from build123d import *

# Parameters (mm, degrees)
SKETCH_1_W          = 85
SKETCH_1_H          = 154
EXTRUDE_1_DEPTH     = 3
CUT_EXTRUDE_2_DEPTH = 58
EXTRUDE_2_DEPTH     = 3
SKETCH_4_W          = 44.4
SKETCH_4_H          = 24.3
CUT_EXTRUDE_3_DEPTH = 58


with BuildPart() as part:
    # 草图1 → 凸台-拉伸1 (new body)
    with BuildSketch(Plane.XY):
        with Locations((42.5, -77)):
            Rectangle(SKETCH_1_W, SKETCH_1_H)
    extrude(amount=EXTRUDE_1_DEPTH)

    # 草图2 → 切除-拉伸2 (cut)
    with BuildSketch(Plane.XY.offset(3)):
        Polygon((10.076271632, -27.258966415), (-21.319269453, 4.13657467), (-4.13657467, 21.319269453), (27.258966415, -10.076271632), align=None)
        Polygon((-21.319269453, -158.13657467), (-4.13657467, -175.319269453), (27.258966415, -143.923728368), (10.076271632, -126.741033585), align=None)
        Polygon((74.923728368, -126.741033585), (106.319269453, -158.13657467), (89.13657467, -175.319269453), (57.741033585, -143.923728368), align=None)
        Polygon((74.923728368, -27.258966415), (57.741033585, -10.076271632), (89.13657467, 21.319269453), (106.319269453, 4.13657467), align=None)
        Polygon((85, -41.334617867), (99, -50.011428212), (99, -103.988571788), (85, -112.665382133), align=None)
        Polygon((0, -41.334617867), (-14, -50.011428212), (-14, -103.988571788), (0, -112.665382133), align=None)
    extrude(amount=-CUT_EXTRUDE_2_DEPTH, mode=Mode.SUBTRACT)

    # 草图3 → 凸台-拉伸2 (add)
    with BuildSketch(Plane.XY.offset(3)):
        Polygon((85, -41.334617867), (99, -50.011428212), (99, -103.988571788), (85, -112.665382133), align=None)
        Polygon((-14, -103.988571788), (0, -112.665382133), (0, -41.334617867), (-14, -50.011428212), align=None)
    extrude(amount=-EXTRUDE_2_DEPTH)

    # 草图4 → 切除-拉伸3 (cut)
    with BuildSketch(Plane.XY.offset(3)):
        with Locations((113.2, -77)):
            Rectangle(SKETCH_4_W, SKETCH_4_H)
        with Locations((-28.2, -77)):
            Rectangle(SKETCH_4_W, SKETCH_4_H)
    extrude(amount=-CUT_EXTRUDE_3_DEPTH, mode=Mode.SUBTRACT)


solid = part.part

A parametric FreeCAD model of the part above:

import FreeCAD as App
import Part
import Sketcher
Q = App.Units.Quantity

doc = App.newDocument("Part")
params = doc.addObject("Spreadsheet::Sheet", "Params")
for row, (alias, value) in enumerate([
    ("sketch1_width", "85 mm"),
    ("sketch1_height", "154 mm"),
    ("pad1_length", "3 mm"),
    ("sketch2_length", "44.4 mm"),
    ("sketch2_length2", "24.3 mm"),
    ("pocket1_length", "58 mm"),
    ("pad2_length", "3 mm"),
    ("sketch4_width", "44.4 mm"),
    ("sketch4_height", "24.3 mm"),
    ("pocket2_length", "58 mm"),
], start=1):
    params.set(f"A{row}", alias)
    params.set(f"B{row}", "=" + value)
    params.setAlias(f"B{row}", alias)

body = doc.addObject("PartDesign::Body", "Body")

# Sketch on XY plane
sketch1 = doc.addObject("Sketcher::SketchObject", "Sketch")
body.addObject(sketch1)
sketch1.AttachmentSupport = (doc.XY_Plane, [""])
sketch1.MapMode = "FlatFace"
sketch1.addGeometry([
    Part.LineSegment(App.Vector(0, 0, 0), App.Vector(0, -154, 0)),
    Part.LineSegment(App.Vector(0, -154, 0), App.Vector(85, -154, 0)),
    Part.LineSegment(App.Vector(85, -154, 0), App.Vector(85, 0, 0)),
    Part.LineSegment(App.Vector(85, 0, 0), App.Vector(0, 0, 0)),
], False)
sketch1.addConstraint([
    Sketcher.Constraint("Coincident", 0, 2, 1, 1),
    Sketcher.Constraint("Coincident", 1, 2, 2, 1),
    Sketcher.Constraint("Coincident", 2, 2, 3, 1),
    Sketcher.Constraint("Coincident", 3, 2, 0, 1),
    Sketcher.Constraint("Vertical", 0),
    Sketcher.Constraint("Horizontal", 1),
    Sketcher.Constraint("Vertical", 2),
    Sketcher.Constraint("Horizontal", 3),
    Sketcher.Constraint("Coincident", 3, 2, -1, 1),
    Sketcher.Constraint("DistanceX", 1, 1, 1, 2, Q("85 mm")),
    Sketcher.Constraint("DistanceY", 0, 2, 0, 1, Q("154 mm")),
])
sketch1.setExpression("Constraints[9]", "Params.sketch1_width")
sketch1.setExpression("Constraints[10]", "Params.sketch1_height")
pad1 = doc.addObject("PartDesign::Pad", "Pad")
body.addObject(pad1)
pad1.Profile = sketch1
pad1.setExpression("Length", "Params.pad1_length")

# Sketch on XY plane
sketch2 = doc.addObject("Sketcher::SketchObject", "Sketch001")
body.addObject(sketch2)
sketch2.AttachmentSupport = (doc.XY_Plane, [""])
sketch2.MapMode = "FlatFace"
sketch2.AttachmentOffset = App.Placement(App.Vector(0, 0, 3), App.Rotation())
sketch2.addGeometry([
    Part.LineSegment(App.Vector(-21.319269, 4.136575, 0), App.Vector(10.076272, -27.258966, 0)),  # 0
    Part.LineSegment(App.Vector(10.076272, -27.258966, 0), App.Vector(27.258966, -10.076272, 0)),  # 1
    Part.LineSegment(App.Vector(27.258966, -10.076272, 0), App.Vector(-4.136575, 21.319269, 0)),  # 2
    Part.LineSegment(App.Vector(-4.136575, 21.319269, 0), App.Vector(-21.319269, 4.136575, 0)),  # 3
    Part.LineSegment(App.Vector(-21.319269, -158.136575, 0), App.Vector(-4.136575, -175.319269, 0)),  # 4
    Part.LineSegment(App.Vector(-4.136575, -175.319269, 0), App.Vector(27.258966, -143.923728, 0)),  # 5
    Part.LineSegment(App.Vector(27.258966, -143.923728, 0), App.Vector(10.076272, -126.741034, 0)),  # 6
    Part.LineSegment(App.Vector(10.076272, -126.741034, 0), App.Vector(-21.319269, -158.136575, 0)),  # 7
    Part.LineSegment(App.Vector(106.319269, -158.136575, 0), App.Vector(74.923728, -126.741034, 0)),  # 8
    Part.LineSegment(App.Vector(74.923728, -126.741034, 0), App.Vector(57.741034, -143.923728, 0)),  # 9
    Part.LineSegment(App.Vector(57.741034, -143.923728, 0), App.Vector(89.136575, -175.319269, 0)),  # 10
    Part.LineSegment(App.Vector(89.136575, -175.319269, 0), App.Vector(106.319269, -158.136575, 0)),  # 11
    Part.LineSegment(App.Vector(57.741034, -10.076272, 0), App.Vector(74.923728, -27.258966, 0)),  # 12
    Part.LineSegment(App.Vector(74.923728, -27.258966, 0), App.Vector(106.319269, 4.136575, 0)),  # 13
    Part.LineSegment(App.Vector(106.319269, 4.136575, 0), App.Vector(89.136575, 21.319269, 0)),  # 14
    Part.LineSegment(App.Vector(89.136575, 21.319269, 0), App.Vector(57.741034, -10.076272, 0)),  # 15
    Part.LineSegment(App.Vector(99, -50.011428, 0), App.Vector(85, -41.334618, 0)),  # 16
    Part.LineSegment(App.Vector(85, -41.334618, 0), App.Vector(85, -112.665382, 0)),  # 17
    Part.LineSegment(App.Vector(85, -112.665382, 0), App.Vector(99, -103.988572, 0)),  # 18
    Part.LineSegment(App.Vector(99, -103.988572, 0), App.Vector(99, -50.011428, 0)),  # 19
    Part.LineSegment(App.Vector(0, -41.334618, 0), App.Vector(-14, -50.011428, 0)),  # 20
    Part.LineSegment(App.Vector(-14, -50.011428, 0), App.Vector(-14, -103.988572, 0)),  # 21
    Part.LineSegment(App.Vector(-14, -103.988572, 0), App.Vector(0, -112.665382, 0)),  # 22
    Part.LineSegment(App.Vector(0, -112.665382, 0), App.Vector(0, -41.334618, 0)),  # 23
], False)
sketch2.addConstraint([
    Sketcher.Constraint("Coincident", 0, 2, 1, 1),
    Sketcher.Constraint("Coincident", 1, 2, 2, 1),
    Sketcher.Constraint("Coincident", 2, 2, 3, 1),
    Sketcher.Constraint("Coincident", 3, 2, 0, 1),
    Sketcher.Constraint("Coincident", 4, 2, 5, 1),
    Sketcher.Constraint("Coincident", 5, 2, 6, 1),
    Sketcher.Constraint("Coincident", 6, 2, 7, 1),
    Sketcher.Constraint("Coincident", 7, 2, 4, 1),
    Sketcher.Constraint("Coincident", 8, 2, 9, 1),
    Sketcher.Constraint("Coincident", 9, 2, 10, 1),
    Sketcher.Constraint("Coincident", 10, 2, 11, 1),
    Sketcher.Constraint("Coincident", 11, 2, 8, 1),
    Sketcher.Constraint("Coincident", 12, 2, 13, 1),
    Sketcher.Constraint("Coincident", 13, 2, 14, 1),
    Sketcher.Constraint("Coincident", 14, 2, 15, 1),
    Sketcher.Constraint("Coincident", 15, 2, 12, 1),
    Sketcher.Constraint("Coincident", 16, 2, 17, 1),
    Sketcher.Constraint("Coincident", 17, 2, 18, 1),
    Sketcher.Constraint("Coincident", 18, 2, 19, 1),
    Sketcher.Constraint("Coincident", 19, 2, 16, 1),
    Sketcher.Constraint("Coincident", 20, 2, 21, 1),
    Sketcher.Constraint("Coincident", 21, 2, 22, 1),
    Sketcher.Constraint("Coincident", 22, 2, 23, 1),
    Sketcher.Constraint("Coincident", 23, 2, 20, 1),
    Sketcher.Constraint("Vertical", 17),
    Sketcher.Constraint("Vertical", 19),
    Sketcher.Constraint("Vertical", 21),
    Sketcher.Constraint("Vertical", 23),
    Sketcher.Constraint("PointOnObject", 22, 2, -2),
    Sketcher.Constraint("Perpendicular", 0, 1),
    Sketcher.Constraint("Perpendicular", 1, 2),
    Sketcher.Constraint("Perpendicular", 2, 3),
    Sketcher.Constraint("Perpendicular", 3, 4),
    Sketcher.Constraint("Perpendicular", 4, 5),
    Sketcher.Constraint("Perpendicular", 5, 6),
    Sketcher.Constraint("Perpendicular", 6, 7),
    Sketcher.Constraint("Perpendicular", 7, 8),
    Sketcher.Constraint("Perpendicular", 8, 9),
    Sketcher.Constraint("Perpendicular", 9, 10),
    Sketcher.Constraint("Perpendicular", 10, 11),
    Sketcher.Constraint("Perpendicular", 11, 12),
    Sketcher.Constraint("Perpendicular", 12, 13),
    Sketcher.Constraint("Perpendicular", 13, 14),
    Sketcher.Constraint("Perpendicular", 14, 15),
    Sketcher.Constraint("Parallel", 18, 20),
    Sketcher.Constraint("Parallel", 16, 22),
    Sketcher.Constraint("Horizontal", 6, 2, 8, 2),
    Sketcher.Constraint("Horizontal", 5, 2, 9, 2),
    Sketcher.Constraint("Horizontal", 4, 2, 10, 2),
    Sketcher.Constraint("Horizontal", 0, 2, 12, 2),
    Sketcher.Constraint("Horizontal", 3, 2, 13, 2),
    Sketcher.Constraint("Horizontal", 2, 2, 14, 2),
    Sketcher.Constraint("Horizontal", 19, 2, 20, 2),
    Sketcher.Constraint("Horizontal", 18, 2, 21, 2),
    Sketcher.Constraint("Horizontal", 17, 2, 22, 2),
    Sketcher.Constraint("Horizontal", 16, 2, 23, 2),
    Sketcher.Constraint("Vertical", 2, 2, 4, 2),
    Sketcher.Constraint("Vertical", 1, 2, 5, 2),
    Sketcher.Constraint("Vertical", 0, 2, 6, 2),
    Sketcher.Constraint("Vertical", 8, 2, 12, 2),
    Sketcher.Constraint("Vertical", 11, 2, 13, 2),
    Sketcher.Constraint("DistanceX", -1, 1, 16, 2, Q("85 mm")),
    Sketcher.Constraint("DistanceX", -1, 1, 18, 2, Q("99 mm")),
    Sketcher.Constraint("Distance", 0, Q("44.4 mm")),
    Sketcher.Constraint("Distance", 1, Q("24.3 mm")),
    Sketcher.Constraint("DistanceY", 17, 2, 17, 1, Q("71.330764 mm")),
    Sketcher.Constraint("DistanceY", 19, 1, 19, 2, Q("53.977144 mm")),
    Sketcher.Constraint("DistanceX", -1, 1, 0, 2, Q("10.076272 mm")),
    Sketcher.Constraint("DistanceY", 1, 2, -1, 1, Q("10.076272 mm")),
    Sketcher.Constraint("DistanceY", 4, 2, -1, 1, Q("175.319269 mm")),
    Sketcher.Constraint("DistanceX", -1, 1, 8, 2, Q("74.923728 mm")),
    Sketcher.Constraint("DistanceY", 18, 2, -1, 1, Q("103.988572 mm")),
])
sketch2.setExpression("Constraints[63]", "Params.sketch2_length")
sketch2.setExpression("Constraints[64]", "Params.sketch2_length2")
pocket1 = doc.addObject("PartDesign::Pocket", "Pocket")
body.addObject(pocket1)
pocket1.Profile = sketch2
pocket1.setExpression("Length", "Params.pocket1_length")

# Sketch on XY plane
sketch3 = doc.addObject("Sketcher::SketchObject", "Sketch002")
body.addObject(sketch3)
sketch3.AttachmentSupport = (doc.XY_Plane, [""])
sketch3.MapMode = "FlatFace"
sketch3.AttachmentOffset = App.Placement(App.Vector(0, 0, 3), App.Rotation())
sketch3.addGeometry([
    Part.LineSegment(App.Vector(99, -50.011428, 0), App.Vector(85, -41.334618, 0)),  # 0
    Part.LineSegment(App.Vector(85, -41.334618, 0), App.Vector(85, -112.665382, 0)),  # 1
    Part.LineSegment(App.Vector(85, -112.665382, 0), App.Vector(99, -103.988572, 0)),  # 2
    Part.LineSegment(App.Vector(99, -103.988572, 0), App.Vector(99, -50.011428, 0)),  # 3
    Part.LineSegment(App.Vector(-14, -103.988572, 0), App.Vector(0, -112.665382, 0)),  # 4
    Part.LineSegment(App.Vector(0, -112.665382, 0), App.Vector(0, -41.334618, 0)),  # 5
    Part.LineSegment(App.Vector(0, -41.334618, 0), App.Vector(-14, -50.011428, 0)),  # 6
    Part.LineSegment(App.Vector(-14, -50.011428, 0), App.Vector(-14, -103.988572, 0)),  # 7
], False)
sketch3.addConstraint([
    Sketcher.Constraint("Coincident", 0, 2, 1, 1),
    Sketcher.Constraint("Coincident", 1, 2, 2, 1),
    Sketcher.Constraint("Coincident", 2, 2, 3, 1),
    Sketcher.Constraint("Coincident", 3, 2, 0, 1),
    Sketcher.Constraint("Coincident", 4, 2, 5, 1),
    Sketcher.Constraint("Coincident", 5, 2, 6, 1),
    Sketcher.Constraint("Coincident", 6, 2, 7, 1),
    Sketcher.Constraint("Coincident", 7, 2, 4, 1),
    Sketcher.Constraint("Vertical", 1),
    Sketcher.Constraint("Vertical", 3),
    Sketcher.Constraint("Vertical", 5),
    Sketcher.Constraint("Vertical", 7),
    Sketcher.Constraint("PointOnObject", 4, 2, -2),
    Sketcher.Constraint("Parallel", 0, 4),
    Sketcher.Constraint("Parallel", 2, 6),
    Sketcher.Constraint("Horizontal", 1, 2, 4, 2),
    Sketcher.Constraint("Horizontal", 0, 2, 5, 2),
    Sketcher.Constraint("Horizontal", 3, 2, 6, 2),
    Sketcher.Constraint("Horizontal", 2, 2, 7, 2),
    Sketcher.Constraint("DistanceX", -1, 1, 0, 2, Q("85 mm")),
    Sketcher.Constraint("DistanceX", -1, 1, 2, 2, Q("99 mm")),
    Sketcher.Constraint("DistanceY", 1, 2, 1, 1, Q("71.330764 mm")),
    Sketcher.Constraint("DistanceY", 3, 1, 3, 2, Q("53.977144 mm")),
    Sketcher.Constraint("DistanceY", 2, 2, -1, 1, Q("103.988572 mm")),
])
pad2 = doc.addObject("PartDesign::Pad", "Pad001")
body.addObject(pad2)
pad2.Profile = sketch3
pad2.setExpression("Length", "Params.pad2_length")
pad2.Reversed = True

# Sketch on XY plane
sketch4 = doc.addObject("Sketcher::SketchObject", "Sketch003")
body.addObject(sketch4)
sketch4.AttachmentSupport = (doc.XY_Plane, [""])
sketch4.MapMode = "FlatFace"
sketch4.AttachmentOffset = App.Placement(App.Vector(0, 0, 3), App.Rotation())
sketch4.addGeometry([
    Part.LineSegment(App.Vector(91, -64.85, 0), App.Vector(91, -89.15, 0)),  # 0
    Part.LineSegment(App.Vector(91, -89.15, 0), App.Vector(135.4, -89.15, 0)),  # 1
    Part.LineSegment(App.Vector(135.4, -89.15, 0), App.Vector(135.4, -64.85, 0)),  # 2
    Part.LineSegment(App.Vector(135.4, -64.85, 0), App.Vector(91, -64.85, 0)),  # 3
    Part.LineSegment(App.Vector(-50.4, -64.85, 0), App.Vector(-50.4, -89.15, 0)),  # 4
    Part.LineSegment(App.Vector(-50.4, -89.15, 0), App.Vector(-6, -89.15, 0)),  # 5
    Part.LineSegment(App.Vector(-6, -89.15, 0), App.Vector(-6, -64.85, 0)),  # 6
    Part.LineSegment(App.Vector(-6, -64.85, 0), App.Vector(-50.4, -64.85, 0)),  # 7
], False)
sketch4.addConstraint([
    Sketcher.Constraint("Coincident", 0, 2, 1, 1),
    Sketcher.Constraint("Coincident", 1, 2, 2, 1),
    Sketcher.Constraint("Coincident", 2, 2, 3, 1),
    Sketcher.Constraint("Coincident", 3, 2, 0, 1),
    Sketcher.Constraint("Coincident", 4, 2, 5, 1),
    Sketcher.Constraint("Coincident", 5, 2, 6, 1),
    Sketcher.Constraint("Coincident", 6, 2, 7, 1),
    Sketcher.Constraint("Coincident", 7, 2, 4, 1),
    Sketcher.Constraint("Vertical", 0),
    Sketcher.Constraint("Horizontal", 1),
    Sketcher.Constraint("Vertical", 2),
    Sketcher.Constraint("Horizontal", 3),
    Sketcher.Constraint("Vertical", 4),
    Sketcher.Constraint("Horizontal", 5),
    Sketcher.Constraint("Vertical", 6),
    Sketcher.Constraint("Horizontal", 7),
    Sketcher.Constraint("Horizontal", 1, 2, 4, 2),
    Sketcher.Constraint("Horizontal", 3, 2, 6, 2),
    Sketcher.Constraint("Equal", 3, 5),
    Sketcher.Constraint("DistanceX", 1, 1, 1, 2, Q("44.4 mm")),
    Sketcher.Constraint("DistanceY", 0, 2, 0, 1, Q("24.3 mm")),
    Sketcher.Constraint("DistanceX", -1, 1, 0, 2, Q("91 mm")),
    Sketcher.Constraint("DistanceX", 5, 2, -1, 1, Q("6 mm")),
    Sketcher.Constraint("DistanceY", 0, 2, -1, 1, Q("89.15 mm")),
])
sketch4.setExpression("Constraints[19]", "Params.sketch4_width")
sketch4.setExpression("Constraints[20]", "Params.sketch4_height")
pocket2 = doc.addObject("PartDesign::Pocket", "Pocket001")
body.addObject(pocket2)
pocket2.Profile = sketch4
pocket2.setExpression("Length", "Params.pocket2_length")

doc.recompute()
